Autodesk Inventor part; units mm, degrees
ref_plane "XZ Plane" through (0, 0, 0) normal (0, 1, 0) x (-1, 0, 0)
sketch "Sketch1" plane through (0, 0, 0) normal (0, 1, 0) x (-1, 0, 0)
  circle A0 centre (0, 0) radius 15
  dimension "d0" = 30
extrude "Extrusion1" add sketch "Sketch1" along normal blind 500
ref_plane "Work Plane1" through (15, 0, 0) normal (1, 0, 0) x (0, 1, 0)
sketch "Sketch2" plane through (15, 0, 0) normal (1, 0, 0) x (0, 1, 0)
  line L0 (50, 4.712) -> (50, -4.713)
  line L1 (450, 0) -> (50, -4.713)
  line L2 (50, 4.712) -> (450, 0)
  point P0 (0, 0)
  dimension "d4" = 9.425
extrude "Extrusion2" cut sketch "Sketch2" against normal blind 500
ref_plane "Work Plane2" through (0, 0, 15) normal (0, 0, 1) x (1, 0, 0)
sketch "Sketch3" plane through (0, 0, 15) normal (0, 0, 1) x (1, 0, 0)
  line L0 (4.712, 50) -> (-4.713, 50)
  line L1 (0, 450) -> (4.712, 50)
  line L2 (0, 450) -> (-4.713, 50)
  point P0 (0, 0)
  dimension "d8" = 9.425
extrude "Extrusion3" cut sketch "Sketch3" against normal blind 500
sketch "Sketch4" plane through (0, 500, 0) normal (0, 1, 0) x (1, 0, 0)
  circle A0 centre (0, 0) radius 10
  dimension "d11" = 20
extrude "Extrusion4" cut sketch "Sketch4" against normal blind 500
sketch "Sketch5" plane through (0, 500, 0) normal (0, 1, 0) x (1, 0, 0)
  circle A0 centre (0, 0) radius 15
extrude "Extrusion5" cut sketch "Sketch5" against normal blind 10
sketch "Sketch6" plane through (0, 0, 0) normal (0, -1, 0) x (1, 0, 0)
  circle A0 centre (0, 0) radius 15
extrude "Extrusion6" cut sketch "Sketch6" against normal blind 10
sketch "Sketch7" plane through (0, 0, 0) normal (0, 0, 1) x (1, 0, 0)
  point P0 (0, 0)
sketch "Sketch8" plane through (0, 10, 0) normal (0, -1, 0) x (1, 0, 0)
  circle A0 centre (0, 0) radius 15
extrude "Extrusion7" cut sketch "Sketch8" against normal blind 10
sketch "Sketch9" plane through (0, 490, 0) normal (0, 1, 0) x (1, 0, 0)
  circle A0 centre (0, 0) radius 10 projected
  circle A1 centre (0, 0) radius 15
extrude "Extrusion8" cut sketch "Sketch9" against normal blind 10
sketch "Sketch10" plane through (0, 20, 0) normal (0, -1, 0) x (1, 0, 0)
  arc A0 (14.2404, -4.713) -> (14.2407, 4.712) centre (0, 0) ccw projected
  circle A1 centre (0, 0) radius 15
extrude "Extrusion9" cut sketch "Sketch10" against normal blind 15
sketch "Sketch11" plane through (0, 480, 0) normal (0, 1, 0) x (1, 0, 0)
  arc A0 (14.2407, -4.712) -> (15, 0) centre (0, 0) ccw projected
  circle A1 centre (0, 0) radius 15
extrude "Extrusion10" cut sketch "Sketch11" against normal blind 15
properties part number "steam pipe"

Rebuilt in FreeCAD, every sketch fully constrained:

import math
import FreeCAD as App
import Part
import Sketcher


def add_polygon(sketch, points):
    """Adds a closed chain of lines whose ends are joined by coincident constraints."""
    first, n = sketch.GeometryCount, len(points)
    for a, b in zip(points, points[1:] + points[:1]):
        sketch.addGeometry(Part.LineSegment(App.Vector(*a, 0), App.Vector(*b, 0)), False)
    for i in range(n):
        sketch.addConstraint(Sketcher.Constraint("Coincident", first + i, 2, first + (i + 1) % n, 1))

doc = App.newDocument("Part")
body = doc.addObject("PartDesign::Body", "Body")

sketch1 = body.newObject("Sketcher::SketchObject", "Sketch")
sketch1.AttachmentSupport = (doc.getObject("XZ_Plane"), [""])
sketch1.MapMode = "FlatFace"
sketch1.addGeometry(Part.Circle(App.Vector(0, 0, 0), App.Vector(0, 0, 1), 15), False)
sketch1.addConstraint([
    Sketcher.Constraint("Coincident", 0, 3, -1, 1),
    Sketcher.Constraint("Diameter", 0, 30.0),
])
pad1 = body.newObject("PartDesign::Pad", "Pad")
pad1.Profile = sketch1
pad1.Length = 500
pad1.Reversed = True

sketch2 = body.newObject("Sketcher::SketchObject", "Sketch001")
sketch2.AttachmentSupport = (doc.getObject("YZ_Plane"), [""])
sketch2.MapMode = "FlatFace"
sketch2.AttachmentOffset = App.Placement(App.Vector(0, 0, 15), App.Rotation())
add_polygon(sketch2, [(450, 0), (50, 5), (50, -5)])
sketch2.addConstraint([
    Sketcher.Constraint("Vertical", 1),
    Sketcher.Constraint("PointOnObject", 2, 2, -1),
    Sketcher.Constraint("Equal", 0, 2),
    Sketcher.Constraint("DistanceY", 1, 2, 1, 1, 9.425),
    Sketcher.Constraint("DistanceX", -1, 1, 0, 2, 50.0),
    Sketcher.Constraint("DistanceX", -1, 1, 2, 2, 450.0),
])
pocket1 = body.newObject("PartDesign::Pocket", "Pocket")
pocket1.Profile = sketch2
pocket1.Length = 500

sketch3 = body.newObject("Sketcher::SketchObject", "Sketch002")
sketch3.AttachmentSupport = (doc.getObject("XY_Plane"), [""])
sketch3.MapMode = "FlatFace"
sketch3.AttachmentOffset = App.Placement(App.Vector(0, 0, 15), App.Rotation())
add_polygon(sketch3, [(-5, 50), (5, 50), (0, 450)])
sketch3.addConstraint([
    Sketcher.Constraint("Horizontal", 0),
    Sketcher.Constraint("PointOnObject", 1, 2, -2),
    Sketcher.Constraint("Equal", 1, 2),
    Sketcher.Constraint("DistanceX", 0, 1, 0, 2, 9.425),
    Sketcher.Constraint("DistanceY", -1, 1, 0, 2, 50.0),
    Sketcher.Constraint("DistanceY", -1, 1, 1, 2, 450.0),
])
pocket2 = body.newObject("PartDesign::Pocket", "Pocket001")
pocket2.Profile = sketch3
pocket2.Length = 500

sketch4 = body.newObject("Sketcher::SketchObject", "Sketch003")
sketch4.AttachmentSupport = (doc.getObject("XZ_Plane"), [""])
sketch4.MapMode = "FlatFace"
sketch4.AttachmentOffset = App.Placement(App.Vector(0, 0, -500), App.Rotation())
sketch4.addGeometry(Part.Circle(App.Vector(0, 0, 0), App.Vector(0, 0, 1), 10), False)
sketch4.addConstraint([
    Sketcher.Constraint("Coincident", 0, 3, -1, 1),
    Sketcher.Constraint("Diameter", 0, 20.0),
])
pocket3 = body.newObject("PartDesign::Pocket", "Pocket002")
pocket3.Profile = sketch4
pocket3.Length = 500
pocket3.Reversed = True

sketch5 = body.newObject("Sketcher::SketchObject", "Sketch004")
sketch5.AttachmentSupport = (doc.getObject("XZ_Plane"), [""])
sketch5.MapMode = "FlatFace"
sketch5.AttachmentOffset = App.Placement(App.Vector(0, 0, -500), App.Rotation())
sketch5.addGeometry(Part.Circle(App.Vector(0, 0, 0), App.Vector(0, 0, 1), 15), False)
sketch5.addConstraint([
    Sketcher.Constraint("Coincident", 0, 3, -1, 1),
    Sketcher.Constraint("Diameter", 0, 30.0),
])
pocket4 = body.newObject("PartDesign::Pocket", "Pocket003")
pocket4.Profile = sketch5
pocket4.Length = 10
pocket4.Reversed = True

sketch6 = body.newObject("Sketcher::SketchObject", "Sketch005")
sketch6.AttachmentSupport = (doc.getObject("XZ_Plane"), [""])
sketch6.MapMode = "FlatFace"
sketch6.addGeometry(Part.Circle(App.Vector(0, 0, 0), App.Vector(0, 0, 1), 15), False)
sketch6.addConstraint([
    Sketcher.Constraint("Coincident", 0, 3, -1, 1),
    Sketcher.Constraint("Diameter", 0, 30.0),
])
pocket5 = body.newObject("PartDesign::Pocket", "Pocket004")
pocket5.Profile = sketch6
pocket5.Length = 10

sketch7 = body.newObject("Sketcher::SketchObject", "Sketch006")
sketch7.AttachmentSupport = (doc.getObject("XZ_Plane"), [""])
sketch7.MapMode = "FlatFace"
sketch7.AttachmentOffset = App.Placement(App.Vector(0, 0, -10), App.Rotation())
sketch7.addGeometry(Part.Circle(App.Vector(0, 0, 0), App.Vector(0, 0, 1), 15), False)
sketch7.addConstraint([
    Sketcher.Constraint("Coincident", 0, 3, -1, 1),
    Sketcher.Constraint("Diameter", 0, 30.0),
])
pocket6 = body.newObject("PartDesign::Pocket", "Pocket005")
pocket6.Profile = sketch7
pocket6.Length = 10

sketch8 = body.newObject("Sketcher::SketchObject", "Sketch007")
sketch8.AttachmentSupport = (doc.getObject("XZ_Plane"), [""])
sketch8.MapMode = "FlatFace"
sketch8.AttachmentOffset = App.Placement(App.Vector(0, 0, -490), App.Rotation())
sketch8.addGeometry([
    Part.Circle(App.Vector(0, 0, 0), App.Vector(0, 0, 1), 15),
    Part.Circle(App.Vector(0, 0, 0), App.Vector(0, 0, 1), 10),
], False)
sketch8.addConstraint([
    Sketcher.Constraint("Coincident", 0, 3, -1, 1),
    Sketcher.Constraint("Coincident", 1, 3, -1, 1),
    Sketcher.Constraint("Diameter", 0, 30.0),
    Sketcher.Constraint("Diameter", 1, 20.0),
])
pocket7 = body.newObject("PartDesign::Pocket", "Pocket006")
pocket7.Profile = sketch8
pocket7.Length = 10
pocket7.Reversed = True

sketch9 = body.newObject("Sketcher::SketchObject", "Sketch008")
sketch9.AttachmentSupport = (doc.getObject("XZ_Plane"), [""])
sketch9.MapMode = "FlatFace"
sketch9.AttachmentOffset = App.Placement(App.Vector(0, 0, -20), App.Rotation())
sketch9.addGeometry([
    Part.ArcOfCircle(Part.Circle(App.Vector(0, 0, 0), App.Vector(0, 0, 1), 15), math.radians(18), math.radians(342)),
    Part.ArcOfCircle(Part.Circle(App.Vector(0, 0, 0), App.Vector(0, 0, 1), 15), math.radians(-18), math.radians(18)),
], False)
sketch9.addConstraint([
    Sketcher.Constraint("Tangent", 0, 1, 1, 2),
    Sketcher.Constraint("Coincident", 1, 1, 0, 2),
    Sketcher.Constraint("Coincident", 0, 3, -1, 1),
    Sketcher.Constraint("Radius", 0, 15.0),
    Sketcher.Constraint("DistanceY", -1, 1, 0, 1, 4.712),
    Sketcher.Constraint("DistanceY", 1, 1, -1, 1, 4.713),
])
pocket8 = body.newObject("PartDesign::Pocket", "Pocket007")
pocket8.Profile = sketch9
pocket8.Length = 15

sketch10 = body.newObject("Sketcher::SketchObject", "Sketch009")
sketch10.AttachmentSupport = (doc.getObject("XZ_Plane"), [""])
sketch10.MapMode = "FlatFace"
sketch10.AttachmentOffset = App.Placement(App.Vector(0, 0, -480), App.Rotation())
sketch10.addGeometry([
    Part.ArcOfCircle(Part.Circle(App.Vector(0, 0, 0), App.Vector(0, 0, 1), 15), math.radians(18), math.radians(360)),
    Part.ArcOfCircle(Part.Circle(App.Vector(0, 0, 0), App.Vector(0, 0, 1), 15), math.radians(0), math.radians(18.31)),
], False)
sketch10.addConstraint([
    Sketcher.Constraint("Tangent", 0, 1, 1, 2),
    Sketcher.Constraint("Coincident", 1, 1, 0, 2),
    Sketcher.Constraint("Coincident", 0, 3, -1, 1),
    Sketcher.Constraint("PointOnObject", 1, 1, -1),
    Sketcher.Constraint("Radius", 0, 15.0),
    Sketcher.Constraint("DistanceY", -1, 1, 0, 1, 4.712),
])
pocket9 = body.newObject("PartDesign::Pocket", "Pocket008")
pocket9.Profile = sketch10
pocket9.Length = 15
pocket9.Reversed = True

doc.recompute()
